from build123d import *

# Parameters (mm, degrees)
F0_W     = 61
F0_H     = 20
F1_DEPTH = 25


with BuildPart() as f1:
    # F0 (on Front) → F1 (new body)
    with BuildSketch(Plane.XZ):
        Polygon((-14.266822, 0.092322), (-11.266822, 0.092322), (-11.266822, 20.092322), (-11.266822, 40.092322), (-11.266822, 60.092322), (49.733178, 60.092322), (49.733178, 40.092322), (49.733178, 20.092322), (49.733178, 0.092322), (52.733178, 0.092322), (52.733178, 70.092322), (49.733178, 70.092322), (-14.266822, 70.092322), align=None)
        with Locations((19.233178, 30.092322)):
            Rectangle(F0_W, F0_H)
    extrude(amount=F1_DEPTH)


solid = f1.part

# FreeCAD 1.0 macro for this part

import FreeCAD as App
import Part
import Sketcher
from FreeCAD import Vector


def add_polygon(sketch, points):
    """Adds a closed chain of lines whose ends are joined by coincident constraints."""
    first, n = sketch.GeometryCount, len(points)
    for a, b in zip(points, points[1:] + points[:1]):
        sketch.addGeometry(Part.LineSegment(App.Vector(*a, 0), App.Vector(*b, 0)), False)
    for i in range(n):
        sketch.addConstraint(Sketcher.Constraint("Coincident", first + i, 2, first + (i + 1) % n, 1))

doc = App.newDocument("Part")
body = doc.addObject("PartDesign::Body", "Body")

# Sketch on XZ plane
sketch1 = body.newObject("Sketcher::SketchObject", "Sketch")
sketch1.AttachmentSupport = (doc.getObject("XZ_Plane"), [""])
sketch1.MapMode = "FlatFace"
add_polygon(sketch1, [(-14.3, 0.1), (-11.3, 0.1), (-11.3, 20.1), (49.7, 20.1), (49.7, 0.1), (52.7, 0.1), (52.7, 70.1), (-14.3, 70.1)])  # lines 0-7
add_polygon(sketch1, [(-11.3, 40.1), (-11.3, 60.1), (49.7, 60.1), (49.7, 40.1)])  # lines 8-11
sketch1.addConstraint(Sketcher.Constraint("Horizontal", 0))
sketch1.addConstraint(Sketcher.Constraint("Vertical", 1))
sketch1.addConstraint(Sketcher.Constraint("Horizontal", 2))
sketch1.addConstraint(Sketcher.Constraint("Vertical", 3))
sketch1.addConstraint(Sketcher.Constraint("Horizontal", 4))
sketch1.addConstraint(Sketcher.Constraint("Vertical", 5))
sketch1.addConstraint(Sketcher.Constraint("Horizontal", 6))
sketch1.addConstraint(Sketcher.Constraint("Vertical", 7))
sketch1.addConstraint(Sketcher.Constraint("Vertical", 8))
sketch1.addConstraint(Sketcher.Constraint("Horizontal", 9))
sketch1.addConstraint(Sketcher.Constraint("Vertical", 10))
sketch1.addConstraint(Sketcher.Constraint("Horizontal", 11))
sketch1.addConstraint(Sketcher.Constraint("Horizontal", 0, 2, 3, 2))
sketch1.addConstraint(Sketcher.Constraint("Vertical", 1, 2, 8, 2))
sketch1.addConstraint(Sketcher.Constraint("Vertical", 3, 2, 9, 2))
sketch1.addConstraint(Sketcher.Constraint("Equal", 0, 4))
sketch1.addConstraint(Sketcher.Constraint("Equal", 3, 8))
sketch1.addConstraint(Sketcher.Constraint("DistanceX", 0, 1, 0, 2, 3.0))
sketch1.addConstraint(Sketcher.Constraint("DistanceX", 2, 1, 2, 2, 61.0))
sketch1.addConstraint(Sketcher.Constraint("DistanceY", 1, 1, 1, 2, 20.0))
sketch1.addConstraint(Sketcher.Constraint("DistanceY", 5, 1, 5, 2, 70.0))
sketch1.addConstraint(Sketcher.Constraint("DistanceY", 8, 2, 6, 2, 10.0))
sketch1.addConstraint(Sketcher.Constraint("DistanceY", -1, 1, 1, 2, 20.092322))
sketch1.addConstraint(Sketcher.Constraint("DistanceX", -1, 1, 2, 2, 49.733178))
pad1 = body.newObject("PartDesign::Pad", "Pad")
pad1.Profile = sketch1
pad1.Length = 25

doc.recompute()
